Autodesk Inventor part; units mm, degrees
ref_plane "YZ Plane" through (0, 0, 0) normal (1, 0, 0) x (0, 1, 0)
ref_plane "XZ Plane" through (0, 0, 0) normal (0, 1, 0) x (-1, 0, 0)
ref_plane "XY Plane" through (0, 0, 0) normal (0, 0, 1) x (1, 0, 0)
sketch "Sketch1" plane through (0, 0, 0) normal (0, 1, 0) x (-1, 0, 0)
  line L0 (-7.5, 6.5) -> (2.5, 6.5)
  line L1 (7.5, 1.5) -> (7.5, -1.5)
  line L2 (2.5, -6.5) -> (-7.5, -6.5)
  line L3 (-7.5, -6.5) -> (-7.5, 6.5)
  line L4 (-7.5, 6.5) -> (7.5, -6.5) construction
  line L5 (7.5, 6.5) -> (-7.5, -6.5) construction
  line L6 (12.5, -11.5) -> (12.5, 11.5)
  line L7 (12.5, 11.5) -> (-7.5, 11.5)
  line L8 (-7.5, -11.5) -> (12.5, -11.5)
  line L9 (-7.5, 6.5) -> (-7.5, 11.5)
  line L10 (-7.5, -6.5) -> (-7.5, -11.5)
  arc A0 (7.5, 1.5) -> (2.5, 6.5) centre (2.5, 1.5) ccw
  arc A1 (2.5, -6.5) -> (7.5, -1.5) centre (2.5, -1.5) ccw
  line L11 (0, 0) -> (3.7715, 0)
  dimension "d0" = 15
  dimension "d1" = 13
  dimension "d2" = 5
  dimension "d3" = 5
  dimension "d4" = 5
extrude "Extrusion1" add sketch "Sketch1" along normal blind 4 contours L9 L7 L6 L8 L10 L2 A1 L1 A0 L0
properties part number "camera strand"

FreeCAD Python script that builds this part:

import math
import FreeCAD as App
import Part
import Sketcher

V = App.Vector
Q = App.Units.Quantity

doc = App.newDocument("Part")
body = doc.addObject("PartDesign::Body", "Body")

sketch1 = doc.addObject("Sketcher::SketchObject", "Sketch")
body.addObject(sketch1)
sketch1.AttachmentSupport = (doc.XZ_Plane, [""])
sketch1.MapMode = "FlatFace"
sketch1.addGeometry([
    Part.LineSegment(V(7.5, 11.5, 0), V(7.5, 6.5, 0)),
    Part.LineSegment(V(7.5, 6.5, 0), V(-2.5, 6.5, 0)),
    Part.ArcOfCircle(Part.Circle(V(-2.5, 1.5, 0), V(0, 0, 1), 5), math.radians(90), math.radians(180)),
    Part.LineSegment(V(-7.5, 1.5, 0), V(-7.5, -1.5, 0)),
    Part.ArcOfCircle(Part.Circle(V(-2.5, -1.5, 0), V(0, 0, 1), 5), math.radians(180), math.radians(270)),
    Part.LineSegment(V(-2.5, -6.5, 0), V(7.5, -6.5, 0)),
    Part.LineSegment(V(7.5, -6.5, 0), V(7.5, -11.5, 0)),
    Part.LineSegment(V(7.5, -11.5, 0), V(-12.5, -11.5, 0)),
    Part.LineSegment(V(-12.5, -11.5, 0), V(-12.5, 11.5, 0)),
    Part.LineSegment(V(-12.5, 11.5, 0), V(7.5, 11.5, 0)),
], False)
sketch1.addConstraint([
    Sketcher.Constraint("Coincident", 0, 2, 1, 1),
    Sketcher.Constraint("Tangent", 1, 2, 2, 1),
    Sketcher.Constraint("Tangent", 2, 2, 3, 1),
    Sketcher.Constraint("Tangent", 3, 2, 4, 1),
    Sketcher.Constraint("Tangent", 4, 2, 5, 1),
    Sketcher.Constraint("Coincident", 5, 2, 6, 1),
    Sketcher.Constraint("Coincident", 6, 2, 7, 1),
    Sketcher.Constraint("Coincident", 7, 2, 8, 1),
    Sketcher.Constraint("Coincident", 8, 2, 9, 1),
    Sketcher.Constraint("Coincident", 9, 2, 0, 1),
    Sketcher.Constraint("Vertical", 0),
    Sketcher.Constraint("Horizontal", 1),
    Sketcher.Constraint("Vertical", 3),
    Sketcher.Constraint("Horizontal", 5),
    Sketcher.Constraint("Vertical", 6),
    Sketcher.Constraint("Horizontal", 7),
    Sketcher.Constraint("Vertical", 8),
    Sketcher.Constraint("Horizontal", 9),
    Sketcher.Constraint("Equal", 2, 4),
    Sketcher.Constraint("Symmetric", 0, 2, 5, 2, -1),
    Sketcher.Constraint("Equal", 0, 6),
    Sketcher.Constraint("Radius", 2, Q("5 mm")),
    Sketcher.Constraint("DistanceY", 0, 2, 0, 1, Q("5 mm")),
    Sketcher.Constraint("DistanceX", 2, 2, 0, 2, Q("15 mm")),
    Sketcher.Constraint("DistanceY", 4, 2, 1, 2, Q("13 mm")),
    Sketcher.Constraint("DistanceX", 7, 2, 3, 2, Q("5 mm")),
    Sketcher.Constraint("DistanceX", 2, 3, -1, 1, Q("2.5 mm")),
])
pad1 = doc.addObject("PartDesign::Pad", "Pad")
body.addObject(pad1)
pad1.Profile = sketch1
pad1.Length = 4
pad1.Reversed = True

doc.recompute()
